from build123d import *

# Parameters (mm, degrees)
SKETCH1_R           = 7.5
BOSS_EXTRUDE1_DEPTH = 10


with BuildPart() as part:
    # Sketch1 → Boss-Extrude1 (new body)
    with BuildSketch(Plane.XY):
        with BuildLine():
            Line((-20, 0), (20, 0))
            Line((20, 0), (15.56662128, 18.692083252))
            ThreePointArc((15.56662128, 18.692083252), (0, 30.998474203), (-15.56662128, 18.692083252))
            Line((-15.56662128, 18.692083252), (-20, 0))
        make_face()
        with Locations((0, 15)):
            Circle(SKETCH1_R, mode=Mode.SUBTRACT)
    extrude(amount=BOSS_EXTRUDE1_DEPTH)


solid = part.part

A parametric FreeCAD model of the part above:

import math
import FreeCAD as App
import Part
import Sketcher

V = App.Vector

doc = App.newDocument("Part")
params = doc.addObject("Spreadsheet::Sheet", "Params")
for row, (alias, value) in enumerate([
    ("sketch1_diameter", "15 mm"),
    ("sketch1_width", "40 mm"),
    ("pad1_length", "10 mm"),
], start=1):
    params.set(f"A{row}", alias)
    params.set(f"B{row}", "=" + value)
    params.setAlias(f"B{row}", alias)

body = doc.addObject("PartDesign::Body", "Body")

# Sketch on XY plane
sketch1 = doc.addObject("Sketcher::SketchObject", "Sketch")
body.addObject(sketch1)
sketch1.AttachmentSupport = (doc.XY_Plane, [""])
sketch1.MapMode = "FlatFace"
sketch1.addGeometry(Part.LineSegment(V(-20, 0, 0), V(20, 0, 0)), False)
sketch1.addGeometry(Part.LineSegment(V(20, 0, 0), V(15.566621, 18.692083, 0)), False)
sketch1.addGeometry(Part.ArcOfCircle(Part.Circle(V(0, 15, 0), V(0, 0, 1), 15.998474), math.radians(13.342834), math.radians(166.657166)), False)
sketch1.addGeometry(Part.LineSegment(V(-15.566621, 18.692083, 0), V(-20, 0, 0)), False)
sketch1.addGeometry(Part.Circle(V(0, 15, 0), V(0, 0, 1), 7.5), False)
sketch1.addConstraint(Sketcher.Constraint("Coincident", 0, 2, 1, 1))
sketch1.addConstraint(Sketcher.Constraint("Tangent", 1, 2, 2, 1))
sketch1.addConstraint(Sketcher.Constraint("Tangent", 2, 2, 3, 1))
sketch1.addConstraint(Sketcher.Constraint("Coincident", 3, 2, 0, 1))
sketch1.addConstraint(Sketcher.Constraint("Horizontal", 0))
sketch1.addConstraint(Sketcher.Constraint("Coincident", 4, 3, 2, 3))
sketch1.addConstraint(Sketcher.Constraint("Symmetric", 0, 2, 3, 2, -1, 1))
sketch1.addConstraint(Sketcher.Constraint("PointOnObject", 2, 3, -2))
sketch1.addConstraint(Sketcher.Constraint("Diameter", 4, 15.0))
sketch1.addConstraint(Sketcher.Constraint("DistanceX", 0, 1, 0, 2, 40.0))
sketch1.addConstraint(Sketcher.Constraint("DistanceY", -1, 1, 2, 3, 15.0))
sketch1.addConstraint(Sketcher.Constraint("Radius", 2, 15.998474))
sketch1.setExpression("Constraints[8]", "Params.sketch1_diameter")
sketch1.setExpression("Constraints[9]", "Params.sketch1_width")
pad1 = doc.addObject("PartDesign::Pad", "Pad")
body.addObject(pad1)
pad1.Profile = sketch1
pad1.setExpression("Length", "Params.pad1_length")

doc.recompute()
